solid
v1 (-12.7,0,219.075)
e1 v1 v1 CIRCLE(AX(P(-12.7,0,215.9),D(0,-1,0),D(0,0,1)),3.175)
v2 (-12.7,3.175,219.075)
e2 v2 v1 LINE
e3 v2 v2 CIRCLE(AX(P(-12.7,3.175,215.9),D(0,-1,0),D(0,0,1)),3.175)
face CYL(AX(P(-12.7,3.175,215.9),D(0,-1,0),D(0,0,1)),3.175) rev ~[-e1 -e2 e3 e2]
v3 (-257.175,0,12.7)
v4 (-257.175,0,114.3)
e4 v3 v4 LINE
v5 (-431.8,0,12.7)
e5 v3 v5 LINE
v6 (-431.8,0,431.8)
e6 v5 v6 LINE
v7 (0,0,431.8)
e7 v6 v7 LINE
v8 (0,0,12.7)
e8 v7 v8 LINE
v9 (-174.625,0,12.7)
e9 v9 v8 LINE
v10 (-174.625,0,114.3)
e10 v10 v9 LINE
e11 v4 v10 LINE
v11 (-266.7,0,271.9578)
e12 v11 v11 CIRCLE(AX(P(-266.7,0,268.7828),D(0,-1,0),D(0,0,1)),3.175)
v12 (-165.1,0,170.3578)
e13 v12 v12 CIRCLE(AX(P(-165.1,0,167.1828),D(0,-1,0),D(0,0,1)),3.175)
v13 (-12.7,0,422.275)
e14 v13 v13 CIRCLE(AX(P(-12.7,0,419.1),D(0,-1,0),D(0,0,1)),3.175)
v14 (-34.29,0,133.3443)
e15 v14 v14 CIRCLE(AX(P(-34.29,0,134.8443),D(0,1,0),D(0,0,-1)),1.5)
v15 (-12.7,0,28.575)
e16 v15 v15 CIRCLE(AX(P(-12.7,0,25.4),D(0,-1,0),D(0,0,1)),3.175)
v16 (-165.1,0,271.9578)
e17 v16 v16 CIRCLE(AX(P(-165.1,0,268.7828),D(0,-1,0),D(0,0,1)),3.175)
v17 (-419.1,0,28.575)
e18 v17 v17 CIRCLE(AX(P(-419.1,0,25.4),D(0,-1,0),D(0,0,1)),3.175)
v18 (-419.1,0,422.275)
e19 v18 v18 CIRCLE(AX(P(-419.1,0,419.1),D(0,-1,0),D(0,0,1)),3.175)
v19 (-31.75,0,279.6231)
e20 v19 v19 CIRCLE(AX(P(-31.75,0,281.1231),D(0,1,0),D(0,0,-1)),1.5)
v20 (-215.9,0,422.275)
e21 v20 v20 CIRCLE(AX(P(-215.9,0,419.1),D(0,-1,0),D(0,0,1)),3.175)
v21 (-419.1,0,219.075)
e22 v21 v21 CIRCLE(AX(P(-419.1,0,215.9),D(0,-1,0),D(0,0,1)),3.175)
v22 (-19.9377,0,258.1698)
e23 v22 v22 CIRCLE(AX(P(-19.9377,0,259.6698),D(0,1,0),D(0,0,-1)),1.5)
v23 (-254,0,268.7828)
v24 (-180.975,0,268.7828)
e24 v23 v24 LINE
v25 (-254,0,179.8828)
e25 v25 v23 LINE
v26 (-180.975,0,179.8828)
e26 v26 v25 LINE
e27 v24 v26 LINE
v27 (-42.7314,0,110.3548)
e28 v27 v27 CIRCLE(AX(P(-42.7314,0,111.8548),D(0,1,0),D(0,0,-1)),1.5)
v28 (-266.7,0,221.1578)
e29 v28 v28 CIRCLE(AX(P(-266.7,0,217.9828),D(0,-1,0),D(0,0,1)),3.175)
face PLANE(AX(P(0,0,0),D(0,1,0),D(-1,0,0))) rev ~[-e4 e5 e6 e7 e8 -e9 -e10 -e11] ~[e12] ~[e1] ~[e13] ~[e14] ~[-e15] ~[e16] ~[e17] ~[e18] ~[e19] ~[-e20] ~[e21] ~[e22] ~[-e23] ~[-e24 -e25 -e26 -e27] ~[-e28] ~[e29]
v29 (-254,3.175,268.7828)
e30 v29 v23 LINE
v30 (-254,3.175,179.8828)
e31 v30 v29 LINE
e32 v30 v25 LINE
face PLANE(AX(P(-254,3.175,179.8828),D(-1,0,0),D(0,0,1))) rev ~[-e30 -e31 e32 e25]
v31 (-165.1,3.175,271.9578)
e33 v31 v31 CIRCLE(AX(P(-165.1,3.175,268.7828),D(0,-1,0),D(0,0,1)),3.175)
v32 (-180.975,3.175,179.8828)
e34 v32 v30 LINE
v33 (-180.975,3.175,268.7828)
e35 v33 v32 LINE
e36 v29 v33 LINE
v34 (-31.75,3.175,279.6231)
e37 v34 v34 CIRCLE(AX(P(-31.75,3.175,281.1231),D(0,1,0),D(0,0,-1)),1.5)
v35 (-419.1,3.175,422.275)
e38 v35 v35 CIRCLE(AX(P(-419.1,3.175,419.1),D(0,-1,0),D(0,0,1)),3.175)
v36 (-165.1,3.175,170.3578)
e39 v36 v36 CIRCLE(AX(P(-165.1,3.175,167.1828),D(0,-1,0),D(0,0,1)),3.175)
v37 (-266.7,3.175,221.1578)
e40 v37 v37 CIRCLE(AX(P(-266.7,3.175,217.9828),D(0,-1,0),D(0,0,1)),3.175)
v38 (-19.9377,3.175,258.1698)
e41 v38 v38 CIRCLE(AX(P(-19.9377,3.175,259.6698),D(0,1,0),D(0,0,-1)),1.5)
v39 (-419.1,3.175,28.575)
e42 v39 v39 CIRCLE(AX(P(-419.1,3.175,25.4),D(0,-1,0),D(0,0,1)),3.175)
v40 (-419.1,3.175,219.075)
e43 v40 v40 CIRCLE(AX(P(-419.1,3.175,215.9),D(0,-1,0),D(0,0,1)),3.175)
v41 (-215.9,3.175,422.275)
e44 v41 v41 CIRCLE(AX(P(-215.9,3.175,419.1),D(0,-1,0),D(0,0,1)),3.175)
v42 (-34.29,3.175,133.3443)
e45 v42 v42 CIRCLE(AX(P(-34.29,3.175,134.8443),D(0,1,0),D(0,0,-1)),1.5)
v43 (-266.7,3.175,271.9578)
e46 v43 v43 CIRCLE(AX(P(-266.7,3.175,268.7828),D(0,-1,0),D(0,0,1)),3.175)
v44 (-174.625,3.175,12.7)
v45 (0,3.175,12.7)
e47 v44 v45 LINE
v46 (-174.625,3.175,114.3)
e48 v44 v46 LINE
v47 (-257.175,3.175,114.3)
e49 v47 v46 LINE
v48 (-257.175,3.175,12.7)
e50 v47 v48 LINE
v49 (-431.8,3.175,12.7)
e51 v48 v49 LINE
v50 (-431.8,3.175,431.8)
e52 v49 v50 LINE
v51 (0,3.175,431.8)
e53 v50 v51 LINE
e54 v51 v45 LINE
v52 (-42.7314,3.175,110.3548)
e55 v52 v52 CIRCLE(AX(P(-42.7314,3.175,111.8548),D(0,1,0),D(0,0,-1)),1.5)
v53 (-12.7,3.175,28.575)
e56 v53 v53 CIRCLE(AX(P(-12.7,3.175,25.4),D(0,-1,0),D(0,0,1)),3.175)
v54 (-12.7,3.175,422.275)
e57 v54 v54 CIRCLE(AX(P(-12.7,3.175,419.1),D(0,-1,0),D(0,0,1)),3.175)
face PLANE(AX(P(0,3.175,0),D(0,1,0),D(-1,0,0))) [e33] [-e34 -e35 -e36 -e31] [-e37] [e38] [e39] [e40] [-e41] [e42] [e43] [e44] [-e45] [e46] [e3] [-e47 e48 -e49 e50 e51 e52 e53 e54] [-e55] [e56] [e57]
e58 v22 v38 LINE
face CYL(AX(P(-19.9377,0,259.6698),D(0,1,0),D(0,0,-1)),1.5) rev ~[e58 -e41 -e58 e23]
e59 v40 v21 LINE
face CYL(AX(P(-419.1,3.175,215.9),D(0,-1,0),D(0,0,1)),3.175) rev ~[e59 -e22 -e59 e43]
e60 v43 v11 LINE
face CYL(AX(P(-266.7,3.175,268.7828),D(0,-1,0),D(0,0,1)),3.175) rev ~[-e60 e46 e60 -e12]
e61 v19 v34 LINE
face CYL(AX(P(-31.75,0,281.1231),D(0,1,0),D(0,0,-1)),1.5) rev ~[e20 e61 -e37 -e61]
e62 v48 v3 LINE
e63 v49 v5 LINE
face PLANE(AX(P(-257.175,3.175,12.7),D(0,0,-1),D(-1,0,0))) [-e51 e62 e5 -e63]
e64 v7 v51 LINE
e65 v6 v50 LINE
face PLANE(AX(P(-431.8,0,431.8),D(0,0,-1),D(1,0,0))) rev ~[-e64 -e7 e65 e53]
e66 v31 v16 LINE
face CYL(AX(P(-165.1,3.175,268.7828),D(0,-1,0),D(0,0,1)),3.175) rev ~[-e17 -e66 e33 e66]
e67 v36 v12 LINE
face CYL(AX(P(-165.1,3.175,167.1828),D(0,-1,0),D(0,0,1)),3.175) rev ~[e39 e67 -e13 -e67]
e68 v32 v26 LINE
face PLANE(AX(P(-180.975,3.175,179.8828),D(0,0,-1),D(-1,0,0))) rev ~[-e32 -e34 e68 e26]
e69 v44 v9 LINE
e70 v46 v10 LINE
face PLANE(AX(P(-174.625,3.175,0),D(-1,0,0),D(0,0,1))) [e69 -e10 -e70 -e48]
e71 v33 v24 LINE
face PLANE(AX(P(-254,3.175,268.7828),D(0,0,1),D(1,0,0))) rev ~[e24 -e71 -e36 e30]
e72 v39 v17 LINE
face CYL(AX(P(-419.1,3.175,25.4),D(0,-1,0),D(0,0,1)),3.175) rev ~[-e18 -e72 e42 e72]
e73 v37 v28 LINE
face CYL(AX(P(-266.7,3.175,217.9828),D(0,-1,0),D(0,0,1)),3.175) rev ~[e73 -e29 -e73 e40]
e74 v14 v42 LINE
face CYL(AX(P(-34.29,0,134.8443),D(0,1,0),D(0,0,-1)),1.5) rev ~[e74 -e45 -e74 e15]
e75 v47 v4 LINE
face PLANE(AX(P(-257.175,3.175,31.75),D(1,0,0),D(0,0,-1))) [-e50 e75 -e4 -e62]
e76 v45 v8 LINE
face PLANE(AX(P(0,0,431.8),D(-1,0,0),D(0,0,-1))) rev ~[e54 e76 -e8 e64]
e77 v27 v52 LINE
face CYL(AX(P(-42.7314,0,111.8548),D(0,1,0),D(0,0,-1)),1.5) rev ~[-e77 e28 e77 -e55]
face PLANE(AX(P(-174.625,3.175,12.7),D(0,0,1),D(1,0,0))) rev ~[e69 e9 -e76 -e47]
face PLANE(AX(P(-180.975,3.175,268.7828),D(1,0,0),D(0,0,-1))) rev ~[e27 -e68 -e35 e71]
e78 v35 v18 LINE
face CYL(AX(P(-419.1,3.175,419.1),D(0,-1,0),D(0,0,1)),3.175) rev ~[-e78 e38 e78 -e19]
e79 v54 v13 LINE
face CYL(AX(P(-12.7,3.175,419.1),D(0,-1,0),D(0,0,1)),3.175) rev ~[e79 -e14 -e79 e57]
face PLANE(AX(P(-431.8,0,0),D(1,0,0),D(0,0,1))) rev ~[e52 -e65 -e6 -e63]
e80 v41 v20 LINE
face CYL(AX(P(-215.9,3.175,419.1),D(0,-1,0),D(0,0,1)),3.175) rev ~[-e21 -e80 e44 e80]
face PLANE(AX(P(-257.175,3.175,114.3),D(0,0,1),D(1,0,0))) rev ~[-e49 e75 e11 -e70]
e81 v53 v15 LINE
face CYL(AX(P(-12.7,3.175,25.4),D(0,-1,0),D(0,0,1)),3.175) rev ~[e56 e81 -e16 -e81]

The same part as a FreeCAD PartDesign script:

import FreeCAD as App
import Part
import Sketcher
Q = App.Units.Quantity


def add_polygon(sketch, points):
    """Adds a closed chain of lines whose ends are joined by coincident constraints."""
    first, n = sketch.GeometryCount, len(points)
    for a, b in zip(points, points[1:] + points[:1]):
        sketch.addGeometry(Part.LineSegment(App.Vector(*a, 0), App.Vector(*b, 0)), False)
    for i in range(n):
        sketch.addConstraint(Sketcher.Constraint("Coincident", first + i, 2, first + (i + 1) % n, 1))

doc = App.newDocument("Part")
body = doc.addObject("PartDesign::Body", "Body")

# Sketch on XZ plane
sketch1 = doc.addObject("Sketcher::SketchObject", "Sketch")
body.addObject(sketch1)
sketch1.AttachmentSupport = (doc.XZ_Plane, [""])
sketch1.MapMode = "FlatFace"
add_polygon(sketch1, [(0, 432), (0, 0), (-432, 0), (-432, 432)])  # lines 0-3
sketch1.addConstraint(Sketcher.Constraint("Vertical", 0))
sketch1.addConstraint(Sketcher.Constraint("Horizontal", 1))
sketch1.addConstraint(Sketcher.Constraint("Vertical", 2))
sketch1.addConstraint(Sketcher.Constraint("Horizontal", 3))
sketch1.addConstraint(Sketcher.Constraint("Coincident", 0, 2, -1, 1))
sketch1.addConstraint(Sketcher.Constraint("Equal", 3, 0))
sketch1.addConstraint(Sketcher.Constraint("DistanceX", 1, 2, 1, 1, Q("17 in")))
pad1 = doc.addObject("PartDesign::Pad", "Pad")
body.addObject(pad1)
pad1.Profile = sketch1
pad1.Length = Q("0.125 in")
pad1.Reversed = True

# Sketch on XZ plane
sketch2 = doc.addObject("Sketcher::SketchObject", "Sketch001")
body.addObject(sketch2)
sketch2.AttachmentSupport = (doc.XZ_Plane, [""])
sketch2.MapMode = "FlatFace"
sketch2.AttachmentOffset = App.Placement(App.Vector(0, 0, -0.125 * 25.4), App.Rotation())
add_polygon(sketch2, [(-175, 114), (-175, 0), (-257, 0), (-257, 114)])  # lines 0-3
sketch2.addConstraint(Sketcher.Constraint("Vertical", 0))
sketch2.addConstraint(Sketcher.Constraint("Horizontal", 1))
sketch2.addConstraint(Sketcher.Constraint("Vertical", 2))
sketch2.addConstraint(Sketcher.Constraint("Horizontal", 3))
sketch2.addConstraint(Sketcher.Constraint("PointOnObject", 0, 2, -1))
sketch2.addConstraint(Sketcher.Constraint("DistanceX", 1, 2, 1, 1, Q("3.25 in")))
sketch2.addConstraint(Sketcher.Constraint("DistanceY", 0, 2, 0, 1, Q("4.5 in")))
sketch2.addConstraint(Sketcher.Constraint("DistanceX", 0, 2, -1, 1, Q("6.875 in")))
pocket1 = doc.addObject("PartDesign::Pocket", "Pocket")
body.addObject(pocket1)
pocket1.Profile = sketch2
pocket1.Length = Q("0.125 in")
pocket1.Reversed = True

# Sketch on XZ plane
sketch3 = doc.addObject("Sketcher::SketchObject", "Sketch002")
body.addObject(sketch3)
sketch3.AttachmentSupport = (doc.XZ_Plane, [""])
sketch3.MapMode = "FlatFace"
sketch3.AttachmentOffset = App.Placement(App.Vector(0, 0, -0.125 * 25.4), App.Rotation())
sketch3.addGeometry(Part.Circle(App.Vector(-165.1, 167.2, 0), App.Vector(0, 0, 1), 3.2), False)
sketch3.addGeometry(Part.Circle(App.Vector(-266.7, 218, 0), App.Vector(0, 0, 1), 3.2), False)
sketch3.addGeometry(Part.Circle(App.Vector(-266.7, 268.8, 0), App.Vector(0, 0, 1), 3.2), False)
sketch3.addGeometry(Part.Circle(App.Vector(-165.1, 268.8, 0), App.Vector(0, 0, 1), 3.2), False)
sketch3.addConstraint(Sketcher.Constraint("Equal", 0, 1))
sketch3.addConstraint(Sketcher.Constraint("Equal", 1, 2))
sketch3.addConstraint(Sketcher.Constraint("Equal", 2, 3))
sketch3.addConstraint(Sketcher.Constraint("Horizontal", 2, 3, 3, 3))
sketch3.addConstraint(Sketcher.Constraint("Vertical", 1, 3, 2, 3))
sketch3.addConstraint(Sketcher.Constraint("Vertical", 0, 3, 3, 3))
sketch3.addConstraint(Sketcher.Constraint("Diameter", 0, Q("0.25 in")))
sketch3.addConstraint(Sketcher.Constraint("DistanceX", 1, 3, 0, 3, Q("4 in")))
sketch3.addConstraint(Sketcher.Constraint("DistanceY", 0, 3, 1, 3, Q("2 in")))
sketch3.addConstraint(Sketcher.Constraint("DistanceY", 1, 3, 2, 3, Q("2 in")))
sketch3.addConstraint(Sketcher.Constraint("DistanceX", 0, 3, -1, 1, Q("6.5 in")))
sketch3.addConstraint(Sketcher.Constraint("DistanceY", -1, 1, 0, 3, Q("6.582 in")))
doc.recompute()
hole = doc.addObject("PartDesign::Hole", "Hole")
body.addObject(hole)
hole.Profile = sketch3
hole.ThreadType = "None"
hole.Diameter = Q("0.25 in")
hole.DepthType = "ThroughAll"
hole.Reversed = True

# Sketch on XZ plane
sketch4 = doc.addObject("Sketcher::SketchObject", "Sketch003")
body.addObject(sketch4)
sketch4.AttachmentSupport = (doc.XZ_Plane, [""])
sketch4.MapMode = "FlatFace"
sketch4.AttachmentOffset = App.Placement(App.Vector(0, 0, -0.125 * 25.4), App.Rotation())
add_polygon(sketch4, [(-254, 180), (-254, 269), (-181, 269), (-181, 180)])  # lines 0-3
sketch4.addConstraint(Sketcher.Constraint("Vertical", 0))
sketch4.addConstraint(Sketcher.Constraint("Horizontal", 1))
sketch4.addConstraint(Sketcher.Constraint("Vertical", 2))
sketch4.addConstraint(Sketcher.Constraint("Horizontal", 3))
sketch4.addConstraint(Sketcher.Constraint("DistanceY", 0, 1, 0, 2, Q("3.5 in")))
sketch4.addConstraint(Sketcher.Constraint("DistanceX", 1, 2, -1, 1, Q("7.125 in")))
sketch4.addConstraint(Sketcher.Constraint("DistanceX", 0, 2, -1, 1, Q("10 in")))
sketch4.addConstraint(Sketcher.Constraint("DistanceY", -1, 1, 0, 2, Q("10.582 in")))
pocket2 = doc.addObject("PartDesign::Pocket", "Pocket001")
body.addObject(pocket2)
pocket2.Profile = sketch4
pocket2.Length = Q("0.125 in")
pocket2.Reversed = True

# Sketch on XZ plane
sketch5 = doc.addObject("Sketcher::SketchObject", "Sketch004")
body.addObject(sketch5)
sketch5.AttachmentSupport = (doc.XZ_Plane, [""])
sketch5.MapMode = "FlatFace"
sketch5.AttachmentOffset = App.Placement(App.Vector(0, 0, -0.125 * 25.4), App.Rotation())
sketch5.addGeometry(Part.Circle(App.Vector(-419.1, 215.9, 0), App.Vector(0, 0, 1), 3.2), False)
sketch5.addGeometry(Part.Circle(App.Vector(-215.9, 419.1, 0), App.Vector(0, 0, 1), 3.2), False)
sketch5.addGeometry(Part.Circle(App.Vector(-12.7, 215.9, 0), App.Vector(0, 0, 1), 3.2), False)
sketch5.addConstraint(Sketcher.Constraint("Equal", 0, 1))
sketch5.addConstraint(Sketcher.Constraint("Equal", 1, 2))
sketch5.addConstraint(Sketcher.Constraint("Horizontal", 0, 3, 2, 3))
sketch5.addConstraint(Sketcher.Constraint("Diameter", 0, Q("0.25 in")))
sketch5.addConstraint(Sketcher.Constraint("DistanceX", 0, 3, 1, 3, Q("8 in")))
sketch5.addConstraint(Sketcher.Constraint("DistanceY", 0, 3, 1, 3, Q("8 in")))
sketch5.addConstraint(Sketcher.Constraint("DistanceX", 1, 3, 2, 3, Q("8 in")))
sketch5.addConstraint(Sketcher.Constraint("DistanceX", 0, 3, -1, 1, Q("16.5 in")))
sketch5.addConstraint(Sketcher.Constraint("DistanceY", -1, 1, 0, 3, Q("8.5 in")))
doc.recompute()
hole2 = doc.addObject("PartDesign::Hole", "Hole001")
body.addObject(hole2)
hole2.Profile = sketch5
hole2.ThreadType = "None"
hole2.Diameter = Q("0.25 in")
hole2.DepthType = "ThroughAll"
hole2.Reversed = True

# Sketch on XZ plane
sketch6 = doc.addObject("Sketcher::SketchObject", "Sketch005")
body.addObject(sketch6)
sketch6.AttachmentSupport = (doc.XZ_Plane, [""])
sketch6.MapMode = "FlatFace"
sketch6.AttachmentOffset = App.Placement(App.Vector(0, 0, -0.125 * 25.4), App.Rotation())
add_polygon(sketch6, [(-175, 13), (0, 13), (0, 0), (-175, 0)])  # lines 0-3
sketch6.addConstraint(Sketcher.Constraint("Horizontal", 0))
sketch6.addConstraint(Sketcher.Constraint("Vertical", 1))
sketch6.addConstraint(Sketcher.Constraint("Horizontal", 2))
sketch6.addConstraint(Sketcher.Constraint("Vertical", 3))
sketch6.addConstraint(Sketcher.Constraint("Coincident", 1, 2, -1, 1))
sketch6.addConstraint(Sketcher.Constraint("DistanceY", 1, 2, 1, 1, Q("0.5 in")))
sketch6.addConstraint(Sketcher.Constraint("DistanceX", 0, 1, 0, 2, Q("6.875 in")))
pocket3 = doc.addObject("PartDesign::Pocket", "Pocket002")
body.addObject(pocket3)
pocket3.Profile = sketch6
pocket3.Length = Q("1 in")
pocket3.Reversed = True

# Sketch on XZ plane
sketch7 = doc.addObject("Sketcher::SketchObject", "Sketch006")
body.addObject(sketch7)
sketch7.AttachmentSupport = (doc.XZ_Plane, [""])
sketch7.MapMode = "FlatFace"
sketch7.AttachmentOffset = App.Placement(App.Vector(0, 0, -0.125 * 25.4), App.Rotation())
add_polygon(sketch7, [(-432, 13), (-257, 13), (-257, 0), (-432, 0)])  # lines 0-3
sketch7.addConstraint(Sketcher.Constraint("Horizontal", 0))
sketch7.addConstraint(Sketcher.Constraint("Vertical", 1))
sketch7.addConstraint(Sketcher.Constraint("Horizontal", 2))
sketch7.addConstraint(Sketcher.Constraint("Vertical", 3))
sketch7.addConstraint(Sketcher.Constraint("PointOnObject", 1, 2, -1))
sketch7.addConstraint(Sketcher.Constraint("DistanceY", 1, 2, 1, 1, Q("0.5 in")))
sketch7.addConstraint(Sketcher.Constraint("DistanceX", 2, 2, -1, 1, Q("17 in")))
sketch7.addConstraint(Sketcher.Constraint("DistanceX", 0, 1, 0, 2, Q("6.875 in")))
pocket4 = doc.addObject("PartDesign::Pocket", "Pocket003")
body.addObject(pocket4)
pocket4.Profile = sketch7
pocket4.Length = Q("1 in")
pocket4.Reversed = True

# Sketch on XZ plane
sketch8 = doc.addObject("Sketcher::SketchObject", "Sketch007")
body.addObject(sketch8)
sketch8.AttachmentSupport = (doc.XZ_Plane, [""])
sketch8.MapMode = "FlatFace"
sketch8.AttachmentOffset = App.Placement(App.Vector(0, 0, -0.125 * 25.4), App.Rotation())
sketch8.addGeometry(Part.Circle(App.Vector(-419.1, 25.4, 0), App.Vector(0, 0, 1), 3.2), False)
sketch8.addGeometry(Part.Circle(App.Vector(-12.7, 25.4, 0), App.Vector(0, 0, 1), 3.2), False)
sketch8.addGeometry(Part.Circle(App.Vector(-419.1, 419.1, 0), App.Vector(0, 0, 1), 3.2), False)
sketch8.addGeometry(Part.Circle(App.Vector(-12.7, 419.1, 0), App.Vector(0, 0, 1), 3.2), False)
sketch8.addConstraint(Sketcher.Constraint("Equal", 0, 1))
sketch8.addConstraint(Sketcher.Constraint("Equal", 1, 2))
sketch8.addConstraint(Sketcher.Constraint("Equal", 2, 3))
sketch8.addConstraint(Sketcher.Constraint("Horizontal", 0, 3, 1, 3))
sketch8.addConstraint(Sketcher.Constraint("Horizontal", 2, 3, 3, 3))
sketch8.addConstraint(Sketcher.Constraint("Vertical", 0, 3, 2, 3))
sketch8.addConstraint(Sketcher.Constraint("Vertical", 1, 3, 3, 3))
sketch8.addConstraint(Sketcher.Constraint("Diameter", 0, Q("0.25 in")))
sketch8.addConstraint(Sketcher.Constraint("DistanceY", -1, 1, 0, 3, Q("1 in")))
sketch8.addConstraint(Sketcher.Constraint("DistanceX", 0, 3, 1, 3, Q("16 in")))
sketch8.addConstraint(Sketcher.Constraint("DistanceX", 0, 3, -1, 1, Q("16.5 in")))
sketch8.addConstraint(Sketcher.Constraint("DistanceY", -1, 1, 2, 3, Q("16.5 in")))
doc.recompute()
hole3 = doc.addObject("PartDesign::Hole", "Hole002")
body.addObject(hole3)
hole3.Profile = sketch8
hole3.ThreadType = "None"
hole3.Diameter = Q("0.25 in")
hole3.DepthType = "ThroughAll"
hole3.Reversed = True

# Sketch on XZ plane
sketch9 = doc.addObject("Sketcher::SketchObject", "Sketch008")
body.addObject(sketch9)
sketch9.AttachmentSupport = (doc.XZ_Plane, [""])
sketch9.MapMode = "FlatFace"
sketch9.addGeometry(Part.Circle(App.Vector(-34.3, 134.8, 0), App.Vector(0, 0, 1), 1.5), False)
sketch9.addConstraint(Sketcher.Constraint("Diameter", 0, Q("0.1181 in")))
sketch9.addConstraint(Sketcher.Constraint("DistanceX", 0, 3, -1, 1, Q("1.35 in")))
sketch9.addConstraint(Sketcher.Constraint("DistanceY", -1, 1, 0, 3, Q("134.8443 mm")))
doc.recompute()
hole4 = doc.addObject("PartDesign::Hole", "Hole003")
body.addObject(hole4)
hole4.Profile = sketch9
hole4.ThreadType = "None"
hole4.Diameter = Q("0.1181102 in")
hole4.DepthType = "ThroughAll"

# Sketch on XZ plane
sketch10 = doc.addObject("Sketcher::SketchObject", "Sketch009")
body.addObject(sketch10)
sketch10.AttachmentSupport = (doc.XZ_Plane, [""])
sketch10.MapMode = "FlatFace"
sketch10.addGeometry(Part.Circle(App.Vector(-31.8, 281.1, 0), App.Vector(0, 0, 1), 1.5), False)
sketch10.addConstraint(Sketcher.Constraint("Diameter", 0, Q("0.1181 in")))
sketch10.addConstraint(Sketcher.Constraint("DistanceX", 0, 3, -1, 1, Q("1.25 in")))
sketch10.addConstraint(Sketcher.Constraint("DistanceY", -1, 1, 0, 3, Q("281.123 mm")))
doc.recompute()
hole5 = doc.addObject("PartDesign::Hole", "Hole004")
body.addObject(hole5)
hole5.Profile = sketch10
hole5.ThreadType = "None"
hole5.Diameter = Q("0.1181102 in")
hole5.DepthType = "ThroughAll"

# Sketch on XZ plane
sketch11 = doc.addObject("Sketcher::SketchObject", "Sketch010")
body.addObject(sketch11)
sketch11.AttachmentSupport = (doc.XZ_Plane, [""])
sketch11.MapMode = "FlatFace"
sketch11.addGeometry(Part.Circle(App.Vector(-42.7, 111.9, 0), App.Vector(0, 0, 1), 1.5), False)
sketch11.addConstraint(Sketcher.Constraint("Diameter", 0, Q("0.1181 in")))
sketch11.addConstraint(Sketcher.Constraint("DistanceX", 0, 3, -1, 1, Q("42.7314 mm")))
sketch11.addConstraint(Sketcher.Constraint("DistanceY", -1, 1, 0, 3, Q("111.8548 mm")))
doc.recompute()
hole6 = doc.addObject("PartDesign::Hole", "Hole005")
body.addObject(hole6)
hole6.Profile = sketch11
hole6.ThreadType = "None"
hole6.Diameter = Q("0.1181102 in")
hole6.DepthType = "Dimension"
hole6.Depth = Q("1 in")
hole6.DrillPoint = "Angled"
hole6.DrillPointAngle = 118

# Sketch on XZ plane
sketch12 = doc.addObject("Sketcher::SketchObject", "Sketch011")
body.addObject(sketch12)
sketch12.AttachmentSupport = (doc.XZ_Plane, [""])
sketch12.MapMode = "FlatFace"
sketch12.addGeometry(Part.Circle(App.Vector(-19.9, 259.7, 0), App.Vector(0, 0, 1), 1.5), False)
sketch12.addConstraint(Sketcher.Constraint("Diameter", 0, Q("0.1181 in")))
sketch12.addConstraint(Sketcher.Constraint("DistanceX", 0, 3, -1, 1, Q("19.9377 mm")))
sketch12.addConstraint(Sketcher.Constraint("DistanceY", -1, 1, 0, 3, Q("259.6698 mm")))
doc.recompute()
hole7 = doc.addObject("PartDesign::Hole", "Hole006")
body.addObject(hole7)
hole7.Profile = sketch12
hole7.ThreadType = "None"
hole7.Diameter = Q("0.1181102 in")
hole7.DepthType = "Dimension"
hole7.Depth = Q("1 in")
hole7.DrillPoint = "Angled"
hole7.DrillPointAngle = 118

doc.recompute()
